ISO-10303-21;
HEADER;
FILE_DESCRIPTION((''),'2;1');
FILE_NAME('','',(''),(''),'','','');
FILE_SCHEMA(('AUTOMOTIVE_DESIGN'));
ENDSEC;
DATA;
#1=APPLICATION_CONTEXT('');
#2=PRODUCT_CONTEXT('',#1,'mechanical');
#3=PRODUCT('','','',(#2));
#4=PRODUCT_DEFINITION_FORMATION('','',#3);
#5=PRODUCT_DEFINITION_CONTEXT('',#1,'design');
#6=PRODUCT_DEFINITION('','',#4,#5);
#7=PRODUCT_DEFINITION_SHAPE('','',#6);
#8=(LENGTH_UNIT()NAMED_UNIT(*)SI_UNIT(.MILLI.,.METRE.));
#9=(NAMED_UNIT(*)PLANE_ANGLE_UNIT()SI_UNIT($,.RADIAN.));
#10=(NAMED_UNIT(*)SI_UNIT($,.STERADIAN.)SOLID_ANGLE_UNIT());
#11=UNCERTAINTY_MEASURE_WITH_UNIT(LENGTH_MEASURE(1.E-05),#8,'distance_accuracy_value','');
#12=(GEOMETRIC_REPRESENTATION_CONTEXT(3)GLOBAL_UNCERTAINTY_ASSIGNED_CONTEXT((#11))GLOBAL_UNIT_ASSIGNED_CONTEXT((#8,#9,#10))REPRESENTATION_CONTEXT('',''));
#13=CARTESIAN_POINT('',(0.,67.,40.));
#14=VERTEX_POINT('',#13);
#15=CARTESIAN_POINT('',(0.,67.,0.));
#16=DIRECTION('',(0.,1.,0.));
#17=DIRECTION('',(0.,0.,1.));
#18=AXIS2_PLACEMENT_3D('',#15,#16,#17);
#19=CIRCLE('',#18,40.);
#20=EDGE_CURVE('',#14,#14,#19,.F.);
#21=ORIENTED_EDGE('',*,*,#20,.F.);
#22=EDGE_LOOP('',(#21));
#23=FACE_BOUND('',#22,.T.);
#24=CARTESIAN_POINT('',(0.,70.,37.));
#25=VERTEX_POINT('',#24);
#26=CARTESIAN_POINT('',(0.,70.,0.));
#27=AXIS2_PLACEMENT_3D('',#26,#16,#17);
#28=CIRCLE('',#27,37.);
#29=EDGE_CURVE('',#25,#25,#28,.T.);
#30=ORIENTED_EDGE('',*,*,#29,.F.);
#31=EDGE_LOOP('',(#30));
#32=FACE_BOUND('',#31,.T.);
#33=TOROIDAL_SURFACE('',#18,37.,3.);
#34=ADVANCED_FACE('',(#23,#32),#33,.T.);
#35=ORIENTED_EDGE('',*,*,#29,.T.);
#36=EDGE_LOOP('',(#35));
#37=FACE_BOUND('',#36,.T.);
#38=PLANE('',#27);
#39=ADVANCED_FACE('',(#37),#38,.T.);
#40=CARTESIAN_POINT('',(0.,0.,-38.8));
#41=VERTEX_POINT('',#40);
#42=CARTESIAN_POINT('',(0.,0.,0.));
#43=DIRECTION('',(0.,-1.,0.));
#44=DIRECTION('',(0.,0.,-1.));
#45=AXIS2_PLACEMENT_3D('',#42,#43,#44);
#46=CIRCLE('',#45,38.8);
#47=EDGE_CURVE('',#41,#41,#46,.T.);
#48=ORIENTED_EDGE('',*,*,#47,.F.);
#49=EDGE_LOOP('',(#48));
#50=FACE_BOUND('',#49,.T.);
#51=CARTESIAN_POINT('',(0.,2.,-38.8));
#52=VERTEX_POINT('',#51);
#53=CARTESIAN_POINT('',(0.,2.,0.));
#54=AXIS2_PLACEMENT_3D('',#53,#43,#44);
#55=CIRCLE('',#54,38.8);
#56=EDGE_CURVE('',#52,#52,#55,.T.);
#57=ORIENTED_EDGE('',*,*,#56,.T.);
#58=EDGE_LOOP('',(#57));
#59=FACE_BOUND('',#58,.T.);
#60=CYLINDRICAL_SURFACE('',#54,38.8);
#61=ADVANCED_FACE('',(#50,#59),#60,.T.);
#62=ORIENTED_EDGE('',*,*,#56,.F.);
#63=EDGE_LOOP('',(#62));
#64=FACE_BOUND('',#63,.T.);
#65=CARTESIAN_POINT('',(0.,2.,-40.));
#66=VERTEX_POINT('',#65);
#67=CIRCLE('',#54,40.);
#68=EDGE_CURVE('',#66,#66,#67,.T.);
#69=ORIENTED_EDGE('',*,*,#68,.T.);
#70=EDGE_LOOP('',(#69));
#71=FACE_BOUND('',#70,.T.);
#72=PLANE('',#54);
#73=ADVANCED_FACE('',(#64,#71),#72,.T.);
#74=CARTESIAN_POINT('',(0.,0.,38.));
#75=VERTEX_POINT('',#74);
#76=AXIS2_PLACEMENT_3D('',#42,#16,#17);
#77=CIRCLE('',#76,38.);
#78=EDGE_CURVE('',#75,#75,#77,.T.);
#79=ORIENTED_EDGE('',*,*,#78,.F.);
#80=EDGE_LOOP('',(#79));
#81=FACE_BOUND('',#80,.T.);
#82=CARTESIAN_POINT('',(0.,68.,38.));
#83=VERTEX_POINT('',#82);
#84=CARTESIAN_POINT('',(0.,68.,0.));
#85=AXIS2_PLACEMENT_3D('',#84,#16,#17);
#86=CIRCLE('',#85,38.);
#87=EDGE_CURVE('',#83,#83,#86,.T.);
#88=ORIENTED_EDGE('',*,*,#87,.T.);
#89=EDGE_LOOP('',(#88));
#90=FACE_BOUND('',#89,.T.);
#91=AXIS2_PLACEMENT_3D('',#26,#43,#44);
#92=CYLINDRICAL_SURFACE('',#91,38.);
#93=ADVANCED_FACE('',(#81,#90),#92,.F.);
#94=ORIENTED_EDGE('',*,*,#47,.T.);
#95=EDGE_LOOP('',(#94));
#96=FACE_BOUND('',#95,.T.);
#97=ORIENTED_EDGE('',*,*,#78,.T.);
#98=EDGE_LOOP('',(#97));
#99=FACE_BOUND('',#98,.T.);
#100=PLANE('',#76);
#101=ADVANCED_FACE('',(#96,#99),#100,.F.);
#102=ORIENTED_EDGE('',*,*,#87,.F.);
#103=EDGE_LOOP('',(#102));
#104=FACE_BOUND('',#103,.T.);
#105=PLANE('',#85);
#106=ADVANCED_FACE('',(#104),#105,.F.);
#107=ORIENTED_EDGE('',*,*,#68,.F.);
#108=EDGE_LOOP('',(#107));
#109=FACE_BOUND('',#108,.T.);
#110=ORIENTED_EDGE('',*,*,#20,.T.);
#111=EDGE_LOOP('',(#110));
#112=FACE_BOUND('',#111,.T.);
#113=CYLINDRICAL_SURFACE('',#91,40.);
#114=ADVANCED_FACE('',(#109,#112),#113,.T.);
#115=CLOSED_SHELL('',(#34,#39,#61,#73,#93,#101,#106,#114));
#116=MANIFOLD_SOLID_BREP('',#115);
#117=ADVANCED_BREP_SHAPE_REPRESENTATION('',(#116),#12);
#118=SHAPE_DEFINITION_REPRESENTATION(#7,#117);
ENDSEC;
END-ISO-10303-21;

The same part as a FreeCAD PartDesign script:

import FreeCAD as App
import Part
import Sketcher
from FreeCAD import Vector
Q = App.Units.Quantity


def edges_at(feature, points):
    """Names of the edges that pass closest to the given points."""
    edges = feature.Shape.Edges
    near = lambda p: min(range(len(edges)), key=lambda i: edges[i].distToShape(Part.Vertex(*p))[0])
    return sorted({f"Edge{near(p) + 1}" for p in points})


def faces_at(feature, points):
    """Names of the faces that lie closest to the given points."""
    faces = feature.Shape.Faces
    near = lambda p: min(range(len(faces)), key=lambda i: faces[i].distToShape(Part.Vertex(*p))[0])
    return sorted({f"Face{near(p) + 1}" for p in points})

doc = App.newDocument("Part")
body = doc.addObject("PartDesign::Body", "Body")

# Sketch on XZ plane
sketch1 = body.newObject("Sketcher::SketchObject", "Sketch")
sketch1.AttachmentSupport = (doc.getObject("XZ_Plane"), [""])
sketch1.MapMode = "FlatFace"
sketch1.addGeometry(Part.Circle(Vector(0, 0, 0), Vector(0, 0, 1), 40), False)
sketch1.addConstraint(Sketcher.Constraint("Coincident", 0, 3, -1, 1))
sketch1.addConstraint(Sketcher.Constraint("Diameter", 0, Q("80 mm")))
pad1 = body.newObject("PartDesign::Pad", "Pad")
pad1.Profile = sketch1
pad1.Length = 70
pad1.Reversed = True
doc.recompute()

thickness = body.newObject("PartDesign::Thickness", "Thickness")
thickness.Base = (pad1, faces_at(pad1, [(0, 0, 0)]))
thickness.Value = 2
thickness.Reversed = True
thickness.Join = "Intersection"

# Sketch on XZ plane
sketch2 = body.newObject("Sketcher::SketchObject", "Sketch001")
sketch2.AttachmentSupport = (doc.getObject("XZ_Plane"), [""])
sketch2.MapMode = "FlatFace"
sketch2.addGeometry(Part.Circle(Vector(0, 0, 0), Vector(0, 0, 1), 40), False)
sketch2.addGeometry(Part.Circle(Vector(0, 0, 0), Vector(0, 0, 1), 38.8), False)
sketch2.addConstraint(Sketcher.Constraint("Coincident", 0, 3, -1, 1))
sketch2.addConstraint(Sketcher.Constraint("Coincident", 1, 3, -1, 1))
sketch2.addConstraint(Sketcher.Constraint("Diameter", 0, Q("80 mm")))
sketch2.addConstraint(Sketcher.Constraint("Diameter", 1, Q("77.6 mm")))
pocket1 = body.newObject("PartDesign::Pocket", "Pocket")
pocket1.Profile = sketch2
pocket1.Length = 2
doc.recompute()

fillet = body.newObject("PartDesign::Fillet", "Fillet")
fillet.Base = (pocket1, edges_at(pocket1, [(0, 70, -40)]))
fillet.Radius = 3

doc.recompute()
